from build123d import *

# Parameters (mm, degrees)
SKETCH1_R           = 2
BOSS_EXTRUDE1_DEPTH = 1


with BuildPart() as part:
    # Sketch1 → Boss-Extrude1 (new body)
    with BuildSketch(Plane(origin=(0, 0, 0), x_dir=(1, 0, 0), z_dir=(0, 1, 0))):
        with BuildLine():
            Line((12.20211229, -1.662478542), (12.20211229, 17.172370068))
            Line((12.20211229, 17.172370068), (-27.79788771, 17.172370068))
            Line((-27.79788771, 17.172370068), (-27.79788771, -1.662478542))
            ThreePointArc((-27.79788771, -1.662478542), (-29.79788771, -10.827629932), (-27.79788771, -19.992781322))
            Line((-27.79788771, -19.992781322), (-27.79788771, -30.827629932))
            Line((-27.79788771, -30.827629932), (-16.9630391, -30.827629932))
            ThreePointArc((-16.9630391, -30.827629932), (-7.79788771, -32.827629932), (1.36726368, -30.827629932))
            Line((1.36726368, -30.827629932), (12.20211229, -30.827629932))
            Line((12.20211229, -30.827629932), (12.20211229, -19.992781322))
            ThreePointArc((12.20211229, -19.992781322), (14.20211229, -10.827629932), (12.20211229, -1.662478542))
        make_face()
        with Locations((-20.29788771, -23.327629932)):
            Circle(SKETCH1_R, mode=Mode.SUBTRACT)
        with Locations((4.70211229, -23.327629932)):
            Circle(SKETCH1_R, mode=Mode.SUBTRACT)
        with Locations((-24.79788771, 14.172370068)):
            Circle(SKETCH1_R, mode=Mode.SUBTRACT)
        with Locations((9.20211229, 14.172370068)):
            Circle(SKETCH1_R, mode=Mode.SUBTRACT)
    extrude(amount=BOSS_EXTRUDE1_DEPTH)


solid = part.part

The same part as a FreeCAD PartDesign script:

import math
import FreeCAD as App
import Part
import Sketcher
from FreeCAD import Vector

doc = App.newDocument("Part")
body = doc.addObject("PartDesign::Body", "Body")

sketch1 = body.newObject("Sketcher::SketchObject", "Sketch")
sketch1.AttachmentSupport = (doc.getObject("XZ_Plane"), [""])
sketch1.MapMode = "FlatFace"
sketch1.addGeometry([
    Part.LineSegment(Vector(12.202112, 1.662479, 0), Vector(12.202112, -17.17237, 0)),
    Part.LineSegment(Vector(12.202112, -17.17237, 0), Vector(-27.797888, -17.17237, 0)),
    Part.LineSegment(Vector(-27.797888, -17.17237, 0), Vector(-27.797888, 1.662479, 0)),
    Part.ArcOfCircle(Part.Circle(Vector(-7.797888, 10.82763, 0), Vector(0, 0, 1), 22), math.radians(155.380023), math.radians(204.619977)),
    Part.LineSegment(Vector(-27.797888, 19.992781, 0), Vector(-27.797888, 30.82763, 0)),
    Part.LineSegment(Vector(-27.797888, 30.82763, 0), Vector(-16.963039, 30.82763, 0)),
    Part.ArcOfCircle(Part.Circle(Vector(-7.797888, 10.82763, 0), Vector(0, 0, 1), 22), math.radians(65.380023), math.radians(114.619977)),
    Part.LineSegment(Vector(1.367264, 30.82763, 0), Vector(12.202112, 30.82763, 0)),
    Part.LineSegment(Vector(12.202112, 30.82763, 0), Vector(12.202112, 19.992781, 0)),
    Part.ArcOfCircle(Part.Circle(Vector(-7.797888, 10.82763, 0), Vector(0, 0, 1), 22), math.radians(-24.619977), math.radians(24.619977)),
    Part.Circle(Vector(-20.297888, 23.32763, 0), Vector(0, 0, 1), 2),
    Part.Circle(Vector(4.702112, 23.32763, 0), Vector(0, 0, 1), 2),
    Part.Circle(Vector(-24.797888, -14.17237, 0), Vector(0, 0, 1), 2),
    Part.Circle(Vector(9.202112, -14.17237, 0), Vector(0, 0, 1), 2),
], False)
sketch1.addConstraint([
    Sketcher.Constraint("Coincident", 0, 2, 1, 1),
    Sketcher.Constraint("Coincident", 1, 2, 2, 1),
    Sketcher.Constraint("Coincident", 2, 2, 3, 2),
    Sketcher.Constraint("Coincident", 3, 1, 4, 1),
    Sketcher.Constraint("Coincident", 4, 2, 5, 1),
    Sketcher.Constraint("Coincident", 5, 2, 6, 2),
    Sketcher.Constraint("Coincident", 6, 1, 7, 1),
    Sketcher.Constraint("Coincident", 7, 2, 8, 1),
    Sketcher.Constraint("Coincident", 8, 2, 9, 2),
    Sketcher.Constraint("Coincident", 9, 1, 0, 1),
    Sketcher.Constraint("Vertical", 0),
    Sketcher.Constraint("Horizontal", 1),
    Sketcher.Constraint("Vertical", 2),
    Sketcher.Constraint("Vertical", 4),
    Sketcher.Constraint("Horizontal", 5),
    Sketcher.Constraint("Horizontal", 7),
    Sketcher.Constraint("Vertical", 8),
    Sketcher.Constraint("Coincident", 6, 3, 3, 3),
    Sketcher.Constraint("Coincident", 9, 3, 3, 3),
    Sketcher.Constraint("Equal", 3, 6),
    Sketcher.Constraint("Equal", 6, 9),
    Sketcher.Constraint("Equal", 10, 11),
    Sketcher.Constraint("Equal", 11, 12),
    Sketcher.Constraint("Equal", 12, 13),
    Sketcher.Constraint("Horizontal", 10, 3, 11, 3),
    Sketcher.Constraint("Horizontal", 12, 3, 13, 3),
    Sketcher.Constraint("Horizontal", 5, 2, 6, 1),
    Sketcher.Constraint("Horizontal", 3, 1, 8, 2),
    Sketcher.Constraint("Horizontal", 2, 2, 9, 1),
    Sketcher.Constraint("Vertical", 2, 2, 3, 1),
    Sketcher.Constraint("Equal", 7, 4),
    Sketcher.Constraint("Diameter", 10, 4.0),
    Sketcher.Constraint("Radius", 3, 22.0),
    Sketcher.Constraint("DistanceX", 1, 2, 1, 1, 40.0),
    Sketcher.Constraint("DistanceX", 10, 3, 11, 3, 25.0),
    Sketcher.Constraint("DistanceX", 12, 3, 3, 3, 17.0),
    Sketcher.Constraint("DistanceY", 12, 3, 3, 3, 25.0),
    Sketcher.Constraint("DistanceX", 3, 3, 13, 3, 17.0),
    Sketcher.Constraint("DistanceY", 0, 2, 13, 3, 3.0),
    Sketcher.Constraint("DistanceX", 10, 3, 3, 3, 12.5),
    Sketcher.Constraint("DistanceY", 3, 3, 10, 3, 12.5),
    Sketcher.Constraint("DistanceY", -1, 1, 3, 3, 10.82763),
    Sketcher.Constraint("DistanceX", 5, 2, -1, 1, 16.963039),
])
pad1 = body.newObject("PartDesign::Pad", "Pad")
pad1.Profile = sketch1
pad1.Length = 1
pad1.Reversed = True

doc.recompute()
